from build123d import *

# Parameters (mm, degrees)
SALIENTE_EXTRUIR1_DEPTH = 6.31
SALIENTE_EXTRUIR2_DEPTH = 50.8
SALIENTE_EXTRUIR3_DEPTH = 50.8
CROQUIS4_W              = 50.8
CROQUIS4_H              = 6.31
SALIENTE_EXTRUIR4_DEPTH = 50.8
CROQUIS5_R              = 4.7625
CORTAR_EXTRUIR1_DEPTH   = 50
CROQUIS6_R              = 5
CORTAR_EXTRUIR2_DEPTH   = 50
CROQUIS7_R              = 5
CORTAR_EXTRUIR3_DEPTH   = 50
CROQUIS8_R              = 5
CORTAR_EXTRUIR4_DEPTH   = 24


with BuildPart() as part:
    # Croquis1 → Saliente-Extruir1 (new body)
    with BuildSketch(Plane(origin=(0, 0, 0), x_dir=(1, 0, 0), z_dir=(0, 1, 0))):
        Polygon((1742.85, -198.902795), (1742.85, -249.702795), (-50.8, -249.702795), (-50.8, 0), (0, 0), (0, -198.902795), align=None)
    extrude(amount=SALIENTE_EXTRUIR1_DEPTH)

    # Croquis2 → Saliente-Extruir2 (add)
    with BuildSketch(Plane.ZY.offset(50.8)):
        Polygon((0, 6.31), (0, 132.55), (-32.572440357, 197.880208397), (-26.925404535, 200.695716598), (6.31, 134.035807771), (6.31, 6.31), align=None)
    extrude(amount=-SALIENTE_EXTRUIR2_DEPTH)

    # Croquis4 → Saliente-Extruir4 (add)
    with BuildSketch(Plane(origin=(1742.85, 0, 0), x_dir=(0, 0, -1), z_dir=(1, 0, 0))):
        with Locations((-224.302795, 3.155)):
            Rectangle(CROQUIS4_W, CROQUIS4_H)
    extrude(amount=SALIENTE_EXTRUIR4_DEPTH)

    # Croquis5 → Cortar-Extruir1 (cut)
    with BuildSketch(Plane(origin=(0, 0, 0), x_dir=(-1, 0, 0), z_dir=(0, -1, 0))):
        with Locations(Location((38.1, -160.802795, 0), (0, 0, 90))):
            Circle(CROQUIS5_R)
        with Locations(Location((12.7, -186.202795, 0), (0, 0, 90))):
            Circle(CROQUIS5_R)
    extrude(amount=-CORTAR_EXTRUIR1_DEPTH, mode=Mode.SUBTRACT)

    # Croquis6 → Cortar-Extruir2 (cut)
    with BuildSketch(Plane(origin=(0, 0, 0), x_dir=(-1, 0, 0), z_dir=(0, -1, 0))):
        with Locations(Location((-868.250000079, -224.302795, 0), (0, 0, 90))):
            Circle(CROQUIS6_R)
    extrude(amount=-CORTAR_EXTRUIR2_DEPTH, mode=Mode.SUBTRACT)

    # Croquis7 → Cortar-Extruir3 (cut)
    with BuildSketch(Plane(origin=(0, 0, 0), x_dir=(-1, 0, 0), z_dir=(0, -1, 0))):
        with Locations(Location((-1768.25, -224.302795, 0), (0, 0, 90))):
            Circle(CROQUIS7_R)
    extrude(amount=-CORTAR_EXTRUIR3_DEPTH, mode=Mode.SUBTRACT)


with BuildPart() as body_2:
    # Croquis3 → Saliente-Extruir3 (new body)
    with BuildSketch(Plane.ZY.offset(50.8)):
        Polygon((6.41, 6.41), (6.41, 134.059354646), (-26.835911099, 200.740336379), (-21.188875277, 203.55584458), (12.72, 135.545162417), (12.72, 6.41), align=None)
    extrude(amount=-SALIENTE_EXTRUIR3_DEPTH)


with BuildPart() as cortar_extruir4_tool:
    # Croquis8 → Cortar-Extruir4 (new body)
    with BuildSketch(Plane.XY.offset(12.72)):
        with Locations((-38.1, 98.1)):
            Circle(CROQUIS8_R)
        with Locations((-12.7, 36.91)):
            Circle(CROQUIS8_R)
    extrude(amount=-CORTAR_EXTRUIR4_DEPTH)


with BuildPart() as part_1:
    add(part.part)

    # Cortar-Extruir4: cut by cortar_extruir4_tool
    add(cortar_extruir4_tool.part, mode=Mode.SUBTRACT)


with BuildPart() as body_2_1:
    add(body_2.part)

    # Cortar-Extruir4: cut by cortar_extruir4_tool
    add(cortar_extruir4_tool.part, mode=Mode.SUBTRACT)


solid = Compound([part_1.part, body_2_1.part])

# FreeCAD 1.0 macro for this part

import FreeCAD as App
import Part
import Sketcher
from FreeCAD import Vector
Q = App.Units.Quantity

doc = App.newDocument("Part")
body = doc.addObject("PartDesign::Body", "Body")

sketch1 = doc.addObject("Sketcher::SketchObject", "Sketch")
body.addObject(sketch1)
sketch1.AttachmentSupport = (doc.XZ_Plane, [""])
sketch1.MapMode = "FlatFace"
sketch1.addGeometry([
    Part.LineSegment(Vector(1743, 250, 0), Vector(1743, 199, 0)),
    Part.LineSegment(Vector(1743, 199, 0), Vector(0, 199, 0)),
    Part.LineSegment(Vector(0, 199, 0), Vector(0, 0, 0)),
    Part.LineSegment(Vector(0, 0, 0), Vector(-51, 0, 0)),
    Part.LineSegment(Vector(-51, 0, 0), Vector(-51, 250, 0)),
    Part.LineSegment(Vector(-51, 250, 0), Vector(1743, 250, 0)),
], False)
sketch1.addConstraint([
    Sketcher.Constraint("Coincident", 0, 2, 1, 1),
    Sketcher.Constraint("Coincident", 1, 2, 2, 1),
    Sketcher.Constraint("Coincident", 2, 2, 3, 1),
    Sketcher.Constraint("Coincident", 3, 2, 4, 1),
    Sketcher.Constraint("Coincident", 4, 2, 5, 1),
    Sketcher.Constraint("Coincident", 5, 2, 0, 1),
    Sketcher.Constraint("Vertical", 0),
    Sketcher.Constraint("Horizontal", 1),
    Sketcher.Constraint("Vertical", 2),
    Sketcher.Constraint("Horizontal", 3),
    Sketcher.Constraint("Vertical", 4),
    Sketcher.Constraint("Horizontal", 5),
    Sketcher.Constraint("Coincident", 2, 2, -1, 1),
    Sketcher.Constraint("Equal", 3, 0),
    Sketcher.Constraint("DistanceX", 3, 2, 3, 1, Q("50.8 mm")),
    Sketcher.Constraint("DistanceX", 1, 2, 1, 1, Q("1742.85 mm")),
    Sketcher.Constraint("DistanceY", 2, 2, 2, 1, Q("198.902795 mm")),
])
pad1 = doc.addObject("PartDesign::Pad", "Pad")
body.addObject(pad1)
pad1.Profile = sketch1
pad1.Length = 6.31
pad1.Reversed = True

sketch2 = doc.addObject("Sketcher::SketchObject", "Sketch001")
body.addObject(sketch2)
sketch2.AttachmentSupport = (doc.YZ_Plane, [""])
sketch2.MapMode = "FlatFace"
sketch2.AttachmentOffset = App.Placement(Vector(0, 0, -50.8), App.Rotation())
sketch2.addGeometry([
    Part.LineSegment(Vector(133, 0, 0), Vector(6, 0, 0)),
    Part.LineSegment(Vector(6, 0, 0), Vector(6, 6, 0)),
    Part.LineSegment(Vector(6, 6, 0), Vector(134, 6, 0)),
    Part.LineSegment(Vector(134, 6, 0), Vector(201, -27, 0)),
    Part.LineSegment(Vector(201, -27, 0), Vector(198, -33, 0)),
    Part.LineSegment(Vector(198, -33, 0), Vector(133, 0, 0)),
], False)
sketch2.addConstraint([
    Sketcher.Constraint("Coincident", 0, 2, 1, 1),
    Sketcher.Constraint("Coincident", 1, 2, 2, 1),
    Sketcher.Constraint("Coincident", 2, 2, 3, 1),
    Sketcher.Constraint("Coincident", 3, 2, 4, 1),
    Sketcher.Constraint("Coincident", 4, 2, 5, 1),
    Sketcher.Constraint("Coincident", 5, 2, 0, 1),
    Sketcher.Constraint("Horizontal", 0),
    Sketcher.Constraint("Vertical", 1),
    Sketcher.Constraint("Horizontal", 2),
    Sketcher.Constraint("PointOnObject", 0, 2, -1),
    Sketcher.Constraint("Perpendicular", 3, 4),
    Sketcher.Constraint("Perpendicular", 4, 5),
    Sketcher.Constraint("Distance", 5, Q("73 mm")),
    Sketcher.Constraint("Angle", 3, Q("-26.5 deg")),
    Sketcher.Constraint("DistanceX", 0, 2, 0, 1, Q("126.24 mm")),
    Sketcher.Constraint("DistanceY", 1, 1, 1, 2, Q("6.31 mm")),
    Sketcher.Constraint("Distance", 4, Q("6.31 mm")),
    Sketcher.Constraint("DistanceX", -1, 1, 0, 2, Q("6.31 mm")),
])
pad2 = doc.addObject("PartDesign::Pad", "Pad001")
body.addObject(pad2)
pad2.Profile = sketch2
pad2.Length = 50.8

sketch3 = doc.addObject("Sketcher::SketchObject", "Sketch002")
body.addObject(sketch3)
sketch3.AttachmentSupport = (doc.YZ_Plane, [""])
sketch3.MapMode = "FlatFace"
sketch3.AttachmentOffset = App.Placement(Vector(0, 0, 1742.85), App.Rotation())
sketch3.addGeometry([
    Part.LineSegment(Vector(6, 250, 0), Vector(0, 250, 0)),
    Part.LineSegment(Vector(0, 250, 0), Vector(0, 199, 0)),
    Part.LineSegment(Vector(0, 199, 0), Vector(6, 199, 0)),
    Part.LineSegment(Vector(6, 199, 0), Vector(6, 250, 0)),
], False)
sketch3.addConstraint([
    Sketcher.Constraint("Coincident", 0, 2, 1, 1),
    Sketcher.Constraint("Coincident", 1, 2, 2, 1),
    Sketcher.Constraint("Coincident", 2, 2, 3, 1),
    Sketcher.Constraint("Coincident", 3, 2, 0, 1),
    Sketcher.Constraint("Horizontal", 0),
    Sketcher.Constraint("Vertical", 1),
    Sketcher.Constraint("Horizontal", 2),
    Sketcher.Constraint("Vertical", 3),
    Sketcher.Constraint("PointOnObject", 0, 2, -2),
    Sketcher.Constraint("DistanceY", 1, 2, 1, 1, Q("50.8 mm")),
    Sketcher.Constraint("DistanceX", 0, 2, 0, 1, Q("6.31 mm")),
    Sketcher.Constraint("DistanceY", -1, 1, 0, 2, Q("249.702795 mm")),
])
pad3 = doc.addObject("PartDesign::Pad", "Pad002")
body.addObject(pad3)
pad3.Profile = sketch3
pad3.Length = 50.8

sketch4 = doc.addObject("Sketcher::SketchObject", "Sketch003")
body.addObject(sketch4)
sketch4.AttachmentSupport = (doc.XZ_Plane, [""])
sketch4.MapMode = "FlatFace"
sketch4.addGeometry([
    Part.Circle(Vector(-38.1, 160.8, 0), Vector(0, 0, 1), 4.8),
    Part.Circle(Vector(-12.7, 186.2, 0), Vector(0, 0, 1), 4.8),
], False)
sketch4.addConstraint([
    Sketcher.Constraint("Equal", 0, 1),
    Sketcher.Constraint("Diameter", 0, Q("9.525 mm")),
    Sketcher.Constraint("DistanceX", 0, 3, -1, 1, Q("38.1 mm")),
    Sketcher.Constraint("DistanceX", 1, 3, -1, 1, Q("12.7 mm")),
    Sketcher.Constraint("DistanceY", 0, 3, 1, 3, Q("25.4 mm")),
    Sketcher.Constraint("DistanceY", -1, 1, 0, 3, Q("160.802795 mm")),
])
pocket1 = doc.addObject("PartDesign::Pocket", "Pocket")
body.addObject(pocket1)
pocket1.Profile = sketch4
pocket1.Length = 50

sketch5 = doc.addObject("Sketcher::SketchObject", "Sketch004")
body.addObject(sketch5)
sketch5.AttachmentSupport = (doc.XZ_Plane, [""])
sketch5.MapMode = "FlatFace"
sketch5.addGeometry(Part.Circle(Vector(868, 224, 0), Vector(0, 0, 1), 5), False)
sketch5.addConstraint([
    Sketcher.Constraint("Diameter", 0, Q("10 mm")),
    Sketcher.Constraint("DistanceX", -1, 1, 0, 3, Q("868.25 mm")),
    Sketcher.Constraint("DistanceY", -1, 1, 0, 3, Q("224.302795 mm")),
])
pocket2 = doc.addObject("PartDesign::Pocket", "Pocket001")
body.addObject(pocket2)
pocket2.Profile = sketch5
pocket2.Length = 50

sketch6 = doc.addObject("Sketcher::SketchObject", "Sketch005")
body.addObject(sketch6)
sketch6.AttachmentSupport = (doc.XZ_Plane, [""])
sketch6.MapMode = "FlatFace"
sketch6.addGeometry(Part.Circle(Vector(1768, 224, 0), Vector(0, 0, 1), 5), False)
sketch6.addConstraint([
    Sketcher.Constraint("Diameter", 0, Q("10 mm")),
    Sketcher.Constraint("DistanceX", -1, 1, 0, 3, Q("1768.25 mm")),
    Sketcher.Constraint("DistanceY", -1, 1, 0, 3, Q("224.302795 mm")),
])
pocket3 = doc.addObject("PartDesign::Pocket", "Pocket002")
body.addObject(pocket3)
pocket3.Profile = sketch6
pocket3.Length = 50
body2 = doc.addObject("PartDesign::Body", "Body001")

sketch7 = doc.addObject("Sketcher::SketchObject", "Sketch006")
body2.addObject(sketch7)
sketch7.AttachmentSupport = (doc.getObject("YZ_Plane001"), [""])
sketch7.MapMode = "FlatFace"
sketch7.AttachmentOffset = App.Placement(Vector(0, 0, -50.8), App.Rotation())
sketch7.addGeometry([
    Part.LineSegment(Vector(134, 6, 0), Vector(6, 6, 0)),
    Part.LineSegment(Vector(6, 6, 0), Vector(6, 13, 0)),
    Part.LineSegment(Vector(6, 13, 0), Vector(136, 13, 0)),
    Part.LineSegment(Vector(136, 13, 0), Vector(204, -21, 0)),
    Part.LineSegment(Vector(204, -21, 0), Vector(201, -27, 0)),
    Part.LineSegment(Vector(201, -27, 0), Vector(134, 6, 0)),
], False)
sketch7.addConstraint([
    Sketcher.Constraint("Coincident", 0, 2, 1, 1),
    Sketcher.Constraint("Coincident", 1, 2, 2, 1),
    Sketcher.Constraint("Coincident", 2, 2, 3, 1),
    Sketcher.Constraint("Coincident", 3, 2, 4, 1),
    Sketcher.Constraint("Coincident", 4, 2, 5, 1),
    Sketcher.Constraint("Coincident", 5, 2, 0, 1),
    Sketcher.Constraint("Horizontal", 0),
    Sketcher.Constraint("Vertical", 1),
    Sketcher.Constraint("Horizontal", 2),
    Sketcher.Constraint("Perpendicular", 3, 4),
    Sketcher.Constraint("Perpendicular", 4, 5),
    Sketcher.Constraint("Angle", 3, Q("-26.5 deg")),
    Sketcher.Constraint("DistanceY", 1, 1, 1, 2, Q("6.31 mm")),
    Sketcher.Constraint("Distance", 4, Q("6.31 mm")),
    Sketcher.Constraint("DistanceX", -1, 1, 0, 2, Q("6.41 mm")),
    Sketcher.Constraint("DistanceY", -1, 1, 0, 2, Q("6.41 mm")),
    Sketcher.Constraint("DistanceX", 0, 2, 0, 1, Q("127.649355 mm")),
    Sketcher.Constraint("DistanceY", 4, 2, -1, 1, Q("26.835911 mm")),
])
pad4 = doc.addObject("PartDesign::Pad", "Pad003")
body2.addObject(pad4)
pad4.Profile = sketch7
pad4.Length = 50.8
body3 = doc.addObject("PartDesign::Body", "Body002")
body3.AllowCompound = True

sketch8 = doc.addObject("Sketcher::SketchObject", "Sketch007")
body3.addObject(sketch8)
sketch8.AttachmentSupport = (doc.getObject("XY_Plane002"), [""])
sketch8.MapMode = "FlatFace"
sketch8.AttachmentOffset = App.Placement(Vector(0, 0, 12.72), App.Rotation())
sketch8.addGeometry([
    Part.Circle(Vector(-38, 98, 0), Vector(0, 0, 1), 5),
    Part.Circle(Vector(-13, 37, 0), Vector(0, 0, 1), 5),
], False)
sketch8.addConstraint([
    Sketcher.Constraint("Equal", 0, 1),
    Sketcher.Constraint("Diameter", 0, Q("10 mm")),
    Sketcher.Constraint("DistanceX", 0, 3, -1, 1, Q("38.1 mm")),
    Sketcher.Constraint("DistanceY", -1, 1, 0, 3, Q("98.1 mm")),
    Sketcher.Constraint("DistanceX", 1, 3, -1, 1, Q("12.7 mm")),
    Sketcher.Constraint("DistanceY", -1, 1, 1, 3, Q("36.91 mm")),
])
pad5 = doc.addObject("PartDesign::Pad", "Pad004")
body3.addObject(pad5)
pad5.Profile = sketch8
pad5.Length = 24
pad5.Reversed = True
doc.recompute()

body4 = doc.addObject("PartDesign::Body", "Body003")
body4.BaseFeature = body3
boolean = doc.addObject("PartDesign::Boolean", "Boolean")
body.addObject(boolean)
boolean.Type = "Cut"
boolean.addObjects([body4])
doc.recompute()

boolean2 = doc.addObject("PartDesign::Boolean", "Boolean001")
body2.addObject(boolean2)
boolean2.Type = "Cut"
boolean2.addObjects([body3])

doc.recompute()
